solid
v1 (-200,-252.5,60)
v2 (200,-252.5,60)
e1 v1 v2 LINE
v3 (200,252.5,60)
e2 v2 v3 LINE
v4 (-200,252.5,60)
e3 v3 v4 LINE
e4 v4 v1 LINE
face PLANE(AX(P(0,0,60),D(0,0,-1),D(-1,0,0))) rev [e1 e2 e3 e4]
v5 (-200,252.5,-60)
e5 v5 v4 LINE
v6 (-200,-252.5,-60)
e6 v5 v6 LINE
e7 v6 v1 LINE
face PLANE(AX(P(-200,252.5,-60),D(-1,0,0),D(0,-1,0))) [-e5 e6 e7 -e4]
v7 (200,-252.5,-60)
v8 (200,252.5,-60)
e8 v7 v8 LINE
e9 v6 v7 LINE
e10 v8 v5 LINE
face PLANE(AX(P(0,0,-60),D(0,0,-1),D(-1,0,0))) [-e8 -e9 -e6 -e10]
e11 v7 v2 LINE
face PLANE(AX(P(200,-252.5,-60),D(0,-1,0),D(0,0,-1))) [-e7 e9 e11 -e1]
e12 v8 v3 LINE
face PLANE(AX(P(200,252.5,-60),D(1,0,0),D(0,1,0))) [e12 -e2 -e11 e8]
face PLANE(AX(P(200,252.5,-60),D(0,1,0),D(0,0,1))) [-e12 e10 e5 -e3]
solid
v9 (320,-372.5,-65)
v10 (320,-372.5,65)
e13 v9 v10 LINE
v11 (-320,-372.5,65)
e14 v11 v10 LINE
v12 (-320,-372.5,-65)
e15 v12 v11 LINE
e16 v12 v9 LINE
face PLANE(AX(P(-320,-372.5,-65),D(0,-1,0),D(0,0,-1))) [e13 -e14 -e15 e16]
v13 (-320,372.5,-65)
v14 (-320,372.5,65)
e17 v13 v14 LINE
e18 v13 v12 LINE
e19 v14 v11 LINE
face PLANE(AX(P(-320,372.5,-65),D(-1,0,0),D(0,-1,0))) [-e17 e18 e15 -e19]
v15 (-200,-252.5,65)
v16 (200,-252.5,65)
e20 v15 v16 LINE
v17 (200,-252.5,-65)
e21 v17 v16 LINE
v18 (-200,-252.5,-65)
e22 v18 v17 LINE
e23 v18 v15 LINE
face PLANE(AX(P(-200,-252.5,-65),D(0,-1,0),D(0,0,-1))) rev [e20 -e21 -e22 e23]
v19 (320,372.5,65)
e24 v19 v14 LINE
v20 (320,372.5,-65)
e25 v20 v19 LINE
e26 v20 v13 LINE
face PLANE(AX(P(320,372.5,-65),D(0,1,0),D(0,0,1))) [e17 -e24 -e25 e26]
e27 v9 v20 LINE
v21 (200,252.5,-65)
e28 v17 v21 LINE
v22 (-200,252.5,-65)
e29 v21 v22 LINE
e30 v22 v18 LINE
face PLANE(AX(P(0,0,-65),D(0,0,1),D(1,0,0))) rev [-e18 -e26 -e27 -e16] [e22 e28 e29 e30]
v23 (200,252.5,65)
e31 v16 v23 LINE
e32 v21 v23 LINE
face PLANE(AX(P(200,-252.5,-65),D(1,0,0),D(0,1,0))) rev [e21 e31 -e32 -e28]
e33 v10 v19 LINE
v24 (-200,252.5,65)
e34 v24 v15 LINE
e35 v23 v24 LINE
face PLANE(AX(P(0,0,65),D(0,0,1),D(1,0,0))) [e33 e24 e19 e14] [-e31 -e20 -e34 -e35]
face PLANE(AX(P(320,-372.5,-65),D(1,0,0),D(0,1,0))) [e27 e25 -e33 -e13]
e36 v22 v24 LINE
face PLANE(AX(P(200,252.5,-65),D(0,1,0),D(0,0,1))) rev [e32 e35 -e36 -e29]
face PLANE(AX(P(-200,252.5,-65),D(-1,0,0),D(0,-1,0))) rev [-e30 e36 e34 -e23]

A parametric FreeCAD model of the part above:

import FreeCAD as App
import Part
import Sketcher

doc = App.newDocument("Part")
body = doc.addObject("PartDesign::Body", "Body")

sketch1 = body.newObject("Sketcher::SketchObject", "Sketch")
sketch1.AttachmentSupport = (doc.getObject("XY_Plane"), [""])
sketch1.MapMode = "FlatFace"
sketch1.addGeometry(Part.LineSegment(App.Vector(-200, 252.5, 0), App.Vector(-200, -252.5, 0)), False)
sketch1.addGeometry(Part.LineSegment(App.Vector(-200, -252.5, 0), App.Vector(200, -252.5, 0)), False)
sketch1.addGeometry(Part.LineSegment(App.Vector(200, -252.5, 0), App.Vector(200, 252.5, 0)), False)
sketch1.addGeometry(Part.LineSegment(App.Vector(200, 252.5, 0), App.Vector(-200, 252.5, 0)), False)
sketch1.addConstraint(Sketcher.Constraint("Coincident", 0, 2, 1, 1))
sketch1.addConstraint(Sketcher.Constraint("Coincident", 1, 2, 2, 1))
sketch1.addConstraint(Sketcher.Constraint("Coincident", 2, 2, 3, 1))
sketch1.addConstraint(Sketcher.Constraint("Coincident", 3, 2, 0, 1))
sketch1.addConstraint(Sketcher.Constraint("Vertical", 0))
sketch1.addConstraint(Sketcher.Constraint("Horizontal", 1))
sketch1.addConstraint(Sketcher.Constraint("Vertical", 2))
sketch1.addConstraint(Sketcher.Constraint("Horizontal", 3))
sketch1.addConstraint(Sketcher.Constraint("Symmetric", 0, 2, 2, 2, -1, 1))
sketch1.addConstraint(Sketcher.Constraint("DistanceX", 1, 1, 1, 2, 400.0))
sketch1.addConstraint(Sketcher.Constraint("DistanceY", 0, 2, 0, 1, 505.0))
pad1 = body.newObject("PartDesign::Pad", "Pad")
pad1.Profile = sketch1
pad1.Type = "TwoLengths"
pad1.Length = 60
pad1.Length2 = 60
body2 = doc.addObject("PartDesign::Body", "Body001")

sketch2 = body2.newObject("Sketcher::SketchObject", "Sketch001")
sketch2.AttachmentSupport = (doc.getObject("XY_Plane001"), [""])
sketch2.MapMode = "FlatFace"
sketch2.addGeometry(Part.LineSegment(App.Vector(-320, 372.5, 0), App.Vector(-320, -372.5, 0)), False)
sketch2.addGeometry(Part.LineSegment(App.Vector(-320, -372.5, 0), App.Vector(320, -372.5, 0)), False)
sketch2.addGeometry(Part.LineSegment(App.Vector(320, -372.5, 0), App.Vector(320, 372.5, 0)), False)
sketch2.addGeometry(Part.LineSegment(App.Vector(320, 372.5, 0), App.Vector(-320, 372.5, 0)), False)
sketch2.addGeometry(Part.LineSegment(App.Vector(200, -252.5, 0), App.Vector(-200, -252.5, 0)), False)
sketch2.addGeometry(Part.LineSegment(App.Vector(-200, -252.5, 0), App.Vector(-200, 252.5, 0)), False)
sketch2.addGeometry(Part.LineSegment(App.Vector(-200, 252.5, 0), App.Vector(200, 252.5, 0)), False)
sketch2.addGeometry(Part.LineSegment(App.Vector(200, 252.5, 0), App.Vector(200, -252.5, 0)), False)
sketch2.addConstraint(Sketcher.Constraint("Coincident", 0, 2, 1, 1))
sketch2.addConstraint(Sketcher.Constraint("Coincident", 1, 2, 2, 1))
sketch2.addConstraint(Sketcher.Constraint("Coincident", 2, 2, 3, 1))
sketch2.addConstraint(Sketcher.Constraint("Coincident", 3, 2, 0, 1))
sketch2.addConstraint(Sketcher.Constraint("Coincident", 4, 2, 5, 1))
sketch2.addConstraint(Sketcher.Constraint("Coincident", 5, 2, 6, 1))
sketch2.addConstraint(Sketcher.Constraint("Coincident", 6, 2, 7, 1))
sketch2.addConstraint(Sketcher.Constraint("Coincident", 7, 2, 4, 1))
sketch2.addConstraint(Sketcher.Constraint("Vertical", 0))
sketch2.addConstraint(Sketcher.Constraint("Horizontal", 1))
sketch2.addConstraint(Sketcher.Constraint("Vertical", 2))
sketch2.addConstraint(Sketcher.Constraint("Horizontal", 3))
sketch2.addConstraint(Sketcher.Constraint("Horizontal", 4))
sketch2.addConstraint(Sketcher.Constraint("Vertical", 5))
sketch2.addConstraint(Sketcher.Constraint("Horizontal", 6))
sketch2.addConstraint(Sketcher.Constraint("Vertical", 7))
sketch2.addConstraint(Sketcher.Constraint("Symmetric", 0, 2, 2, 2, -1, 1))
sketch2.addConstraint(Sketcher.Constraint("Symmetric", 4, 2, 6, 2, -1, 1))
sketch2.addConstraint(Sketcher.Constraint("DistanceX", 1, 1, 1, 2, 640.0))
sketch2.addConstraint(Sketcher.Constraint("DistanceX", 4, 2, 4, 1, 400.0))
sketch2.addConstraint(Sketcher.Constraint("DistanceY", 0, 2, 0, 1, 745.0))
sketch2.addConstraint(Sketcher.Constraint("DistanceY", 5, 1, 5, 2, 505.0))
pad2 = body2.newObject("PartDesign::Pad", "Pad001")
pad2.Profile = sketch2
pad2.Type = "TwoLengths"
pad2.Length = 65
pad2.Length2 = 65

doc.recompute()
